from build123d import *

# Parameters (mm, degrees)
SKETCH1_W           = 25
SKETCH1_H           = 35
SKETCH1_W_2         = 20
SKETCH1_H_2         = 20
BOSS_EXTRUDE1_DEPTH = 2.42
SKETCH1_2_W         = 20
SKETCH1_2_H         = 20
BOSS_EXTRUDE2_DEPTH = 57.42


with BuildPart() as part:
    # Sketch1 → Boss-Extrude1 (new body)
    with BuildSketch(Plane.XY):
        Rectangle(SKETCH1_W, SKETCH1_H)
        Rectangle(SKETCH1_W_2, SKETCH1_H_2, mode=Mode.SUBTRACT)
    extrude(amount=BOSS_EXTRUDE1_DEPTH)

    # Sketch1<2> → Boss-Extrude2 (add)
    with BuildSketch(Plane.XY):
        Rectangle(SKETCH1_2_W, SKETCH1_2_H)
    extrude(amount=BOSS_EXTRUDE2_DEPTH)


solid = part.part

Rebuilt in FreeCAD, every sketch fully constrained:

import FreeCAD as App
import Part
import Sketcher

doc = App.newDocument("Part")
body = doc.addObject("PartDesign::Body", "Body")

# Sketch on XY plane
sketch1 = body.newObject("Sketcher::SketchObject", "Sketch")
sketch1.AttachmentSupport = (doc.getObject("XY_Plane"), [""])
sketch1.MapMode = "FlatFace"
sketch1.addGeometry(Part.LineSegment(App.Vector(-12, 18, 0), App.Vector(-12, -18, 0)), False)
sketch1.addGeometry(Part.LineSegment(App.Vector(-12, -18, 0), App.Vector(12, -18, 0)), False)
sketch1.addGeometry(Part.LineSegment(App.Vector(12, -18, 0), App.Vector(12, 18, 0)), False)
sketch1.addGeometry(Part.LineSegment(App.Vector(12, 18, 0), App.Vector(-12, 18, 0)), False)
sketch1.addGeometry(Part.LineSegment(App.Vector(10, -10, 0), App.Vector(-10, -10, 0)), False)
sketch1.addGeometry(Part.LineSegment(App.Vector(-10, -10, 0), App.Vector(-10, 10, 0)), False)
sketch1.addGeometry(Part.LineSegment(App.Vector(-10, 10, 0), App.Vector(10, 10, 0)), False)
sketch1.addGeometry(Part.LineSegment(App.Vector(10, 10, 0), App.Vector(10, -10, 0)), False)
sketch1.addConstraint(Sketcher.Constraint("Coincident", 0, 2, 1, 1))
sketch1.addConstraint(Sketcher.Constraint("Coincident", 1, 2, 2, 1))
sketch1.addConstraint(Sketcher.Constraint("Coincident", 2, 2, 3, 1))
sketch1.addConstraint(Sketcher.Constraint("Coincident", 3, 2, 0, 1))
sketch1.addConstraint(Sketcher.Constraint("Coincident", 4, 2, 5, 1))
sketch1.addConstraint(Sketcher.Constraint("Coincident", 5, 2, 6, 1))
sketch1.addConstraint(Sketcher.Constraint("Coincident", 6, 2, 7, 1))
sketch1.addConstraint(Sketcher.Constraint("Coincident", 7, 2, 4, 1))
sketch1.addConstraint(Sketcher.Constraint("Vertical", 0))
sketch1.addConstraint(Sketcher.Constraint("Horizontal", 1))
sketch1.addConstraint(Sketcher.Constraint("Vertical", 2))
sketch1.addConstraint(Sketcher.Constraint("Horizontal", 3))
sketch1.addConstraint(Sketcher.Constraint("Horizontal", 4))
sketch1.addConstraint(Sketcher.Constraint("Vertical", 5))
sketch1.addConstraint(Sketcher.Constraint("Horizontal", 6))
sketch1.addConstraint(Sketcher.Constraint("Vertical", 7))
sketch1.addConstraint(Sketcher.Constraint("Symmetric", 0, 2, 2, 2, -1, 1))
sketch1.addConstraint(Sketcher.Constraint("Symmetric", 4, 2, 6, 2, -1, 1))
sketch1.addConstraint(Sketcher.Constraint("Equal", 6, 5))
sketch1.addConstraint(Sketcher.Constraint("DistanceX", 1, 1, 1, 2, 25.0))
sketch1.addConstraint(Sketcher.Constraint("DistanceX", 4, 2, 4, 1, 20.0))
sketch1.addConstraint(Sketcher.Constraint("DistanceY", 0, 2, 0, 1, 35.0))
pad1 = body.newObject("PartDesign::Pad", "Pad")
pad1.Profile = sketch1
pad1.Length = 2.42

# Sketch on XY plane
sketch2 = body.newObject("Sketcher::SketchObject", "Sketch001")
sketch2.AttachmentSupport = (doc.getObject("XY_Plane"), [""])
sketch2.MapMode = "FlatFace"
sketch2.addGeometry(Part.LineSegment(App.Vector(-10, 10, 0), App.Vector(-10, -10, 0)), False)
sketch2.addGeometry(Part.LineSegment(App.Vector(-10, -10, 0), App.Vector(10, -10, 0)), False)
sketch2.addGeometry(Part.LineSegment(App.Vector(10, -10, 0), App.Vector(10, 10, 0)), False)
sketch2.addGeometry(Part.LineSegment(App.Vector(10, 10, 0), App.Vector(-10, 10, 0)), False)
sketch2.addConstraint(Sketcher.Constraint("Coincident", 0, 2, 1, 1))
sketch2.addConstraint(Sketcher.Constraint("Coincident", 1, 2, 2, 1))
sketch2.addConstraint(Sketcher.Constraint("Coincident", 2, 2, 3, 1))
sketch2.addConstraint(Sketcher.Constraint("Coincident", 3, 2, 0, 1))
sketch2.addConstraint(Sketcher.Constraint("Vertical", 0))
sketch2.addConstraint(Sketcher.Constraint("Horizontal", 1))
sketch2.addConstraint(Sketcher.Constraint("Vertical", 2))
sketch2.addConstraint(Sketcher.Constraint("Horizontal", 3))
sketch2.addConstraint(Sketcher.Constraint("Symmetric", 0, 2, 2, 2, -1, 1))
sketch2.addConstraint(Sketcher.Constraint("Equal", 3, 0))
sketch2.addConstraint(Sketcher.Constraint("DistanceX", 1, 1, 1, 2, 20.0))
pad2 = body.newObject("PartDesign::Pad", "Pad001")
pad2.Profile = sketch2
pad2.Length = 57.42

doc.recompute()
